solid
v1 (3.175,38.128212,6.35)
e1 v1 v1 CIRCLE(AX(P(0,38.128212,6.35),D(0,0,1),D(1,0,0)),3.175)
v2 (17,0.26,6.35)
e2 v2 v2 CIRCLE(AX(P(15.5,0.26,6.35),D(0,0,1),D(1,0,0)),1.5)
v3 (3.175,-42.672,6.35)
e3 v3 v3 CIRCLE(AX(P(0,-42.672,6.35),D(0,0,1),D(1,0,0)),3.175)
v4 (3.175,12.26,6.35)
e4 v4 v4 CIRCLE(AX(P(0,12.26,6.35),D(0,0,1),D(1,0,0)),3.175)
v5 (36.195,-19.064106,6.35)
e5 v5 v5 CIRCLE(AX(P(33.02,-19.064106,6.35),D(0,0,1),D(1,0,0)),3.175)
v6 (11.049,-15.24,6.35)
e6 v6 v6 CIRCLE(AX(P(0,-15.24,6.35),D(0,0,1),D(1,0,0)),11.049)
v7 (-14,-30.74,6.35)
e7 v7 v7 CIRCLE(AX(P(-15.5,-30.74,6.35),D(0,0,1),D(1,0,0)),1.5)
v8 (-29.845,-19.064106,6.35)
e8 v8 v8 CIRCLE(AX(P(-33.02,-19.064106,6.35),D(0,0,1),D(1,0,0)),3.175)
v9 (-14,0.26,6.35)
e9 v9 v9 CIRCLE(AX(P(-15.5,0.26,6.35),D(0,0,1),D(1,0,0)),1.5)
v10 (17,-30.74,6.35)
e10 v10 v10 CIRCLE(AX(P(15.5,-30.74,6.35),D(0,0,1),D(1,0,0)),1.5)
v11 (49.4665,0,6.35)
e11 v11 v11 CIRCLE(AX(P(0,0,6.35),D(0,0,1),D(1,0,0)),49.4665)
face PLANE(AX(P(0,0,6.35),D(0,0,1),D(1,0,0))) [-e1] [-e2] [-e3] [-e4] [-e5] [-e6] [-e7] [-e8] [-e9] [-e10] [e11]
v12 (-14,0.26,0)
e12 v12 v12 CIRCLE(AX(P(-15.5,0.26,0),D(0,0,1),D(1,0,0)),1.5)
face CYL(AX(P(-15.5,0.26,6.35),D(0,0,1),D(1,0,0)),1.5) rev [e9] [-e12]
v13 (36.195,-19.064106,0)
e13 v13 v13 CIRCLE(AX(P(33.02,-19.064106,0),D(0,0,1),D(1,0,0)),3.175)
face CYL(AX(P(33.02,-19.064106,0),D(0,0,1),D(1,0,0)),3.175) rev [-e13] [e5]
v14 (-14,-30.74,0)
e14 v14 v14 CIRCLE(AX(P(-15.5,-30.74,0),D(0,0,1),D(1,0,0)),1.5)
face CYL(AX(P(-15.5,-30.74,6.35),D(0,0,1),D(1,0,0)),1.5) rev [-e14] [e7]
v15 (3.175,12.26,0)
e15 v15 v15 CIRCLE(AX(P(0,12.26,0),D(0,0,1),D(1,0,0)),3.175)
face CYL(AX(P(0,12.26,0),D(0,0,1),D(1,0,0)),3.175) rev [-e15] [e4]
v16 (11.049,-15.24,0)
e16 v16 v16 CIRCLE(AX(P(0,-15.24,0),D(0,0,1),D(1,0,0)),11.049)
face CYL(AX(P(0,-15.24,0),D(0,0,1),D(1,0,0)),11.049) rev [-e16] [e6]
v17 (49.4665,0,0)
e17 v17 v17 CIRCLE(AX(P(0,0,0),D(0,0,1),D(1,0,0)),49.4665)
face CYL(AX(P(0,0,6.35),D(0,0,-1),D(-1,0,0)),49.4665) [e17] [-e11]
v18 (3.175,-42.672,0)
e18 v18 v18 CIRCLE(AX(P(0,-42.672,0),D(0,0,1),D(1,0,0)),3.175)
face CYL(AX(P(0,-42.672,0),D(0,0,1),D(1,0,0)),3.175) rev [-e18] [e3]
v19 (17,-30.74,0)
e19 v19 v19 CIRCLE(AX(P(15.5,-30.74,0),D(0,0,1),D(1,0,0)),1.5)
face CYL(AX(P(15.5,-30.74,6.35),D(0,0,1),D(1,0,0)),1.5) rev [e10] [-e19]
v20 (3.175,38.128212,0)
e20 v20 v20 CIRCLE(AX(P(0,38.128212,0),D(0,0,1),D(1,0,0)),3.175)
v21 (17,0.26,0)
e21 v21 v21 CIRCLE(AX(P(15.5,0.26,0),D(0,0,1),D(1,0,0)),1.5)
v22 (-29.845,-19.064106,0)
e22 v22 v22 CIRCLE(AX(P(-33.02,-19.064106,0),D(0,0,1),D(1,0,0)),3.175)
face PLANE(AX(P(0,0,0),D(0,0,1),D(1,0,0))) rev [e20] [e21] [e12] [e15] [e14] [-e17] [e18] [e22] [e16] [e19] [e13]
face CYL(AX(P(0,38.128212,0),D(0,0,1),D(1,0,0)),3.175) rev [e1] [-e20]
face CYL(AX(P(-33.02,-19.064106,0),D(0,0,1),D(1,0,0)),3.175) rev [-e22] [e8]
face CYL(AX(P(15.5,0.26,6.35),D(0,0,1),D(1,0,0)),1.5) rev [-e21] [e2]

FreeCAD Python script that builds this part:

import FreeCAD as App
import Part
import Sketcher

V = App.Vector
Q = App.Units.Quantity

doc = App.newDocument("Part")
body = doc.addObject("PartDesign::Body", "Body")

# Sketch on XY plane
sketch1 = body.newObject("Sketcher::SketchObject", "Sketch")
sketch1.AttachmentSupport = (doc.getObject("XY_Plane"), [""])
sketch1.MapMode = "FlatFace"
sketch1.addGeometry(Part.Circle(V(0, 0, 0), V(0, 0, 1), 49.4665), False)
sketch1.addConstraint(Sketcher.Constraint("Coincident", 0, 3, -1, 1))
sketch1.addConstraint(Sketcher.Constraint("Diameter", 0, Q("3.895 in")))
pad1 = body.newObject("PartDesign::Pad", "Pad")
pad1.Profile = sketch1
pad1.Length = Q("0.25 in")

# Sketch on XY plane
sketch2 = body.newObject("Sketcher::SketchObject", "Sketch001")
sketch2.AttachmentSupport = (doc.getObject("XY_Plane"), [""])
sketch2.MapMode = "FlatFace"
sketch2.AttachmentOffset = App.Placement(V(0, 0, 0.25 * 25.4), App.Rotation())
sketch2.addGeometry(Part.Circle(V(15.5, 0.26, 0), V(0, 0, 1), 1.5), False)
sketch2.addGeometry(Part.Circle(V(-15.5, 0.26, 0), V(0, 0, 1), 1.5), False)
sketch2.addGeometry(Part.Circle(V(-15.5, -30.74, 0), V(0, 0, 1), 1.5), False)
sketch2.addGeometry(Part.Circle(V(15.5, -30.74, 0), V(0, 0, 1), 1.5), False)
sketch2.addConstraint(Sketcher.Constraint("Equal", 0, 1))
sketch2.addConstraint(Sketcher.Constraint("Equal", 1, 2))
sketch2.addConstraint(Sketcher.Constraint("Equal", 2, 3))
sketch2.addConstraint(Sketcher.Constraint("Symmetric", 0, 3, 1, 3, -2))
sketch2.addConstraint(Sketcher.Constraint("Symmetric", 2, 3, 3, 3, -2))
sketch2.addConstraint(Sketcher.Constraint("Vertical", 1, 3, 2, 3))
sketch2.addConstraint(Sketcher.Constraint("Diameter", 0, Q("3 mm")))
sketch2.addConstraint(Sketcher.Constraint("DistanceX", -1, 1, 0, 3, Q("15.5 mm")))
sketch2.addConstraint(Sketcher.Constraint("DistanceY", -1, 1, 0, 3, Q("0.26 mm")))
sketch2.addConstraint(Sketcher.Constraint("DistanceY", 2, 3, -1, 1, Q("30.74 mm")))
doc.recompute()
hole = body.newObject("PartDesign::Hole", "Hole")
hole.Profile = sketch2
hole.ThreadType = "None"
hole.Diameter = 3
hole.DepthType = "ThroughAll"

# Sketch on XY plane
sketch3 = body.newObject("Sketcher::SketchObject", "Sketch002")
sketch3.AttachmentSupport = (doc.getObject("XY_Plane"), [""])
sketch3.MapMode = "FlatFace"
sketch3.AttachmentOffset = App.Placement(V(0, 0, 0.25 * 25.4), App.Rotation())
sketch3.addGeometry(Part.Circle(V(0, -42.672, 0), V(0, 0, 1), 3.175), False)
sketch3.addGeometry(Part.Circle(V(0, 12.26, 0), V(0, 0, 1), 3.175), False)
sketch3.addConstraint(Sketcher.Constraint("Equal", 0, 1))
sketch3.addConstraint(Sketcher.Constraint("PointOnObject", 0, 3, -2))
sketch3.addConstraint(Sketcher.Constraint("PointOnObject", 1, 3, -2))
sketch3.addConstraint(Sketcher.Constraint("Diameter", 0, Q("0.25 in")))
sketch3.addConstraint(Sketcher.Constraint("DistanceY", 0, 3, -1, 1, Q("1.68 in")))
sketch3.addConstraint(Sketcher.Constraint("DistanceY", -1, 1, 1, 3, Q("12.26 mm")))
pocket1 = body.newObject("PartDesign::Pocket", "Pocket")
pocket1.Profile = sketch3
pocket1.Type = "ThroughAll"

# Sketch on XY plane
sketch4 = body.newObject("Sketcher::SketchObject", "Sketch003")
sketch4.AttachmentSupport = (doc.getObject("XY_Plane"), [""])
sketch4.MapMode = "FlatFace"
sketch4.AttachmentOffset = App.Placement(V(0, 0, 0.25 * 25.4), App.Rotation())
sketch4.addGeometry(Part.Circle(V(0, 38.128212, 0), V(0, 0, 1), 3.175), False)
sketch4.addGeometry(Part.Circle(V(-33.02, -19.064106, 0), V(0, 0, 1), 3.175), False)
sketch4.addGeometry(Part.Circle(V(33.02, -19.064106, 0), V(0, 0, 1), 3.175), False)
sketch4.addConstraint(Sketcher.Constraint("Equal", 0, 1))
sketch4.addConstraint(Sketcher.Constraint("Equal", 1, 2))
sketch4.addConstraint(Sketcher.Constraint("Symmetric", 1, 3, 2, 3, -2))
sketch4.addConstraint(Sketcher.Constraint("PointOnObject", 0, 3, -2))
sketch4.addConstraint(Sketcher.Constraint("Diameter", 0, Q("0.25 in")))
sketch4.addConstraint(Sketcher.Constraint("DistanceX", 1, 3, -1, 1, Q("1.3 in")))
sketch4.addConstraint(Sketcher.Constraint("DistanceY", -1, 1, 0, 3, Q("38.128212 mm")))
sketch4.addConstraint(Sketcher.Constraint("DistanceY", 1, 3, -1, 1, Q("19.064106 mm")))
pocket2 = body.newObject("PartDesign::Pocket", "Pocket001")
pocket2.Profile = sketch4
pocket2.Type = "ThroughAll"

# Sketch on XY plane
sketch5 = body.newObject("Sketcher::SketchObject", "Sketch004")
sketch5.AttachmentSupport = (doc.getObject("XY_Plane"), [""])
sketch5.MapMode = "FlatFace"
sketch5.AttachmentOffset = App.Placement(V(0, 0, 0.25 * 25.4), App.Rotation())
sketch5.addGeometry(Part.Circle(V(0, -15.24, 0), V(0, 0, 1), 11.049), False)
sketch5.addConstraint(Sketcher.Constraint("PointOnObject", 0, 3, -2))
sketch5.addConstraint(Sketcher.Constraint("Diameter", 0, Q("0.87 in")))
sketch5.addConstraint(Sketcher.Constraint("DistanceY", 0, 3, -1, 1, Q("0.6 in")))
pocket3 = body.newObject("PartDesign::Pocket", "Pocket002")
pocket3.Profile = sketch5
pocket3.Type = "ThroughAll"

doc.recompute()
